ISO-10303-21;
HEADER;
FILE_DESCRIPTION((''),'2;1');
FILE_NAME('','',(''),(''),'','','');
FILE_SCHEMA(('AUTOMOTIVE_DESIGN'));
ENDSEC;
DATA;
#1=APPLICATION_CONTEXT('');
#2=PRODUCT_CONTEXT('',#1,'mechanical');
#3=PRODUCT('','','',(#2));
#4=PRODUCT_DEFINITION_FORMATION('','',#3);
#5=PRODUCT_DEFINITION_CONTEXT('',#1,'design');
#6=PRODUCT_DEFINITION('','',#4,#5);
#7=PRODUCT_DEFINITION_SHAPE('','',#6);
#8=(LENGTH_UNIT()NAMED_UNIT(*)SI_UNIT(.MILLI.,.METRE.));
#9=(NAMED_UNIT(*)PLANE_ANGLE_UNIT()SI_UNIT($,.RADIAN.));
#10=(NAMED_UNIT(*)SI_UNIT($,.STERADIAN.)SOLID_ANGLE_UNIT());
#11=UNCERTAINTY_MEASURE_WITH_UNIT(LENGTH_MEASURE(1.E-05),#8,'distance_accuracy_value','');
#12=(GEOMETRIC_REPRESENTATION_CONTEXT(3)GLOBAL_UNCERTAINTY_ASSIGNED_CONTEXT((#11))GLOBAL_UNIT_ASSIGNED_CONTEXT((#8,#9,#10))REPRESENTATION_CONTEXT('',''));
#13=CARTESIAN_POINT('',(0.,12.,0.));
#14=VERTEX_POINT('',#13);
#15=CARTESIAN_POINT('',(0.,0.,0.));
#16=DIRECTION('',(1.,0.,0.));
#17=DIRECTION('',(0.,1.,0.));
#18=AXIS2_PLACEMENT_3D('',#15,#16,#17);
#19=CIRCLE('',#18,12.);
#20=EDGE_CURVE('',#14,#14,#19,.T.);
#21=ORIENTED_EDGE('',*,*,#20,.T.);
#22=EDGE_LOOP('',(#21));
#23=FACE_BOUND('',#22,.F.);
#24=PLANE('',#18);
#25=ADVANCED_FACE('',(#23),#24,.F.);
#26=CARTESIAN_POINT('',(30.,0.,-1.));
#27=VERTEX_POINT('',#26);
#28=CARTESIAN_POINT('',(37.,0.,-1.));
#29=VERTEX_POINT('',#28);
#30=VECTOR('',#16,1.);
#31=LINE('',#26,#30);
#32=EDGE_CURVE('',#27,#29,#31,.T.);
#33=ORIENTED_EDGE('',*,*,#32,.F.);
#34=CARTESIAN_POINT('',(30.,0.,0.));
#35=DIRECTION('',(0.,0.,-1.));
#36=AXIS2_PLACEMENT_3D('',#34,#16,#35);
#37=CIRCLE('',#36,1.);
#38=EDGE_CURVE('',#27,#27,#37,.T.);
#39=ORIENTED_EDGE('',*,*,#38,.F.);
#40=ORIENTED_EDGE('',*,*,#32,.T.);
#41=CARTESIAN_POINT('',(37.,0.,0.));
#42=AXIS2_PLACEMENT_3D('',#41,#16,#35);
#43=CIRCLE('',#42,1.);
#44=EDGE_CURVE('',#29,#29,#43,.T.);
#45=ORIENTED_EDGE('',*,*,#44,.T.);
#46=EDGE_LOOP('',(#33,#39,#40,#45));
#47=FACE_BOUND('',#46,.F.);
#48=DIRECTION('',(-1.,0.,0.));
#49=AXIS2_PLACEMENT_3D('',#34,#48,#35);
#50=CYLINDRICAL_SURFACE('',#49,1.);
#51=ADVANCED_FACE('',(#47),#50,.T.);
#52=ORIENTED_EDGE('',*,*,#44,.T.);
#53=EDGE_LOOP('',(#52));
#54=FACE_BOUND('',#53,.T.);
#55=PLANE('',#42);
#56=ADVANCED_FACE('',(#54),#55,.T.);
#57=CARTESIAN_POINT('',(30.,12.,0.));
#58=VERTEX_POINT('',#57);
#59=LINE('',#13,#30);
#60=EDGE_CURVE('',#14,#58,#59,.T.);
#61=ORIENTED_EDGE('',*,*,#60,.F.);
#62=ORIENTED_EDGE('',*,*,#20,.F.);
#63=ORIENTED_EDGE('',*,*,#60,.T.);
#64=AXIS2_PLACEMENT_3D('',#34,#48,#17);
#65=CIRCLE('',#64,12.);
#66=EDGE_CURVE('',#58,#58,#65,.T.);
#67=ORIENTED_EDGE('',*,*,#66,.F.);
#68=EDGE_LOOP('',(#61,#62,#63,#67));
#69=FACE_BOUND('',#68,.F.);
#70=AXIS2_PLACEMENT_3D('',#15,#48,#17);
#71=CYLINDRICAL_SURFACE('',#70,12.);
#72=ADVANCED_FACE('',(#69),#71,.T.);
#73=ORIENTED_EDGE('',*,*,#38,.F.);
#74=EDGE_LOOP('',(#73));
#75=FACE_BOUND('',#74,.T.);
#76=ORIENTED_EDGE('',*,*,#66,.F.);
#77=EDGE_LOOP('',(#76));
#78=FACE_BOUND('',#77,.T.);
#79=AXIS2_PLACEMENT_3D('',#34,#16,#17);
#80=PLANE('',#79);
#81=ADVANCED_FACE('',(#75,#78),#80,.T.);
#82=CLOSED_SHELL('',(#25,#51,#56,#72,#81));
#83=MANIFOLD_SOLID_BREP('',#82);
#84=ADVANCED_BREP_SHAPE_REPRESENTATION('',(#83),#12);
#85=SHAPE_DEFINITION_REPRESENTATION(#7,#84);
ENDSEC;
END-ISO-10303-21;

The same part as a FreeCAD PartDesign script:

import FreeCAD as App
import Part
import Sketcher
Q = App.Units.Quantity

doc = App.newDocument("Part")
body = doc.addObject("PartDesign::Body", "Body")

# Sketch on YZ plane
sketch1 = body.newObject("Sketcher::SketchObject", "Sketch")
sketch1.AttachmentSupport = (doc.getObject("YZ_Plane"), [""])
sketch1.MapMode = "FlatFace"
sketch1.addGeometry(Part.Circle(App.Vector(0, 0, 0), App.Vector(0, 0, 1), 12), False)
sketch1.addConstraint(Sketcher.Constraint("Coincident", 0, 3, -1, 1))
sketch1.addConstraint(Sketcher.Constraint("Diameter", 0, Q("24 mm")))
pad1 = body.newObject("PartDesign::Pad", "Pad")
pad1.Profile = sketch1
pad1.Length = 30

# Sketch on YZ plane
sketch2 = body.newObject("Sketcher::SketchObject", "Sketch001")
sketch2.AttachmentSupport = (doc.getObject("YZ_Plane"), [""])
sketch2.MapMode = "FlatFace"
sketch2.AttachmentOffset = App.Placement(App.Vector(0, 0, 30), App.Rotation())
sketch2.addGeometry(Part.Circle(App.Vector(0, 0, 0), App.Vector(0, 0, 1), 1), False)
sketch2.addConstraint(Sketcher.Constraint("Coincident", 0, 3, -1, 1))
sketch2.addConstraint(Sketcher.Constraint("Diameter", 0, Q("2 mm")))
pad2 = body.newObject("PartDesign::Pad", "Pad001")
pad2.Profile = sketch2
pad2.Length = 7

doc.recompute()
